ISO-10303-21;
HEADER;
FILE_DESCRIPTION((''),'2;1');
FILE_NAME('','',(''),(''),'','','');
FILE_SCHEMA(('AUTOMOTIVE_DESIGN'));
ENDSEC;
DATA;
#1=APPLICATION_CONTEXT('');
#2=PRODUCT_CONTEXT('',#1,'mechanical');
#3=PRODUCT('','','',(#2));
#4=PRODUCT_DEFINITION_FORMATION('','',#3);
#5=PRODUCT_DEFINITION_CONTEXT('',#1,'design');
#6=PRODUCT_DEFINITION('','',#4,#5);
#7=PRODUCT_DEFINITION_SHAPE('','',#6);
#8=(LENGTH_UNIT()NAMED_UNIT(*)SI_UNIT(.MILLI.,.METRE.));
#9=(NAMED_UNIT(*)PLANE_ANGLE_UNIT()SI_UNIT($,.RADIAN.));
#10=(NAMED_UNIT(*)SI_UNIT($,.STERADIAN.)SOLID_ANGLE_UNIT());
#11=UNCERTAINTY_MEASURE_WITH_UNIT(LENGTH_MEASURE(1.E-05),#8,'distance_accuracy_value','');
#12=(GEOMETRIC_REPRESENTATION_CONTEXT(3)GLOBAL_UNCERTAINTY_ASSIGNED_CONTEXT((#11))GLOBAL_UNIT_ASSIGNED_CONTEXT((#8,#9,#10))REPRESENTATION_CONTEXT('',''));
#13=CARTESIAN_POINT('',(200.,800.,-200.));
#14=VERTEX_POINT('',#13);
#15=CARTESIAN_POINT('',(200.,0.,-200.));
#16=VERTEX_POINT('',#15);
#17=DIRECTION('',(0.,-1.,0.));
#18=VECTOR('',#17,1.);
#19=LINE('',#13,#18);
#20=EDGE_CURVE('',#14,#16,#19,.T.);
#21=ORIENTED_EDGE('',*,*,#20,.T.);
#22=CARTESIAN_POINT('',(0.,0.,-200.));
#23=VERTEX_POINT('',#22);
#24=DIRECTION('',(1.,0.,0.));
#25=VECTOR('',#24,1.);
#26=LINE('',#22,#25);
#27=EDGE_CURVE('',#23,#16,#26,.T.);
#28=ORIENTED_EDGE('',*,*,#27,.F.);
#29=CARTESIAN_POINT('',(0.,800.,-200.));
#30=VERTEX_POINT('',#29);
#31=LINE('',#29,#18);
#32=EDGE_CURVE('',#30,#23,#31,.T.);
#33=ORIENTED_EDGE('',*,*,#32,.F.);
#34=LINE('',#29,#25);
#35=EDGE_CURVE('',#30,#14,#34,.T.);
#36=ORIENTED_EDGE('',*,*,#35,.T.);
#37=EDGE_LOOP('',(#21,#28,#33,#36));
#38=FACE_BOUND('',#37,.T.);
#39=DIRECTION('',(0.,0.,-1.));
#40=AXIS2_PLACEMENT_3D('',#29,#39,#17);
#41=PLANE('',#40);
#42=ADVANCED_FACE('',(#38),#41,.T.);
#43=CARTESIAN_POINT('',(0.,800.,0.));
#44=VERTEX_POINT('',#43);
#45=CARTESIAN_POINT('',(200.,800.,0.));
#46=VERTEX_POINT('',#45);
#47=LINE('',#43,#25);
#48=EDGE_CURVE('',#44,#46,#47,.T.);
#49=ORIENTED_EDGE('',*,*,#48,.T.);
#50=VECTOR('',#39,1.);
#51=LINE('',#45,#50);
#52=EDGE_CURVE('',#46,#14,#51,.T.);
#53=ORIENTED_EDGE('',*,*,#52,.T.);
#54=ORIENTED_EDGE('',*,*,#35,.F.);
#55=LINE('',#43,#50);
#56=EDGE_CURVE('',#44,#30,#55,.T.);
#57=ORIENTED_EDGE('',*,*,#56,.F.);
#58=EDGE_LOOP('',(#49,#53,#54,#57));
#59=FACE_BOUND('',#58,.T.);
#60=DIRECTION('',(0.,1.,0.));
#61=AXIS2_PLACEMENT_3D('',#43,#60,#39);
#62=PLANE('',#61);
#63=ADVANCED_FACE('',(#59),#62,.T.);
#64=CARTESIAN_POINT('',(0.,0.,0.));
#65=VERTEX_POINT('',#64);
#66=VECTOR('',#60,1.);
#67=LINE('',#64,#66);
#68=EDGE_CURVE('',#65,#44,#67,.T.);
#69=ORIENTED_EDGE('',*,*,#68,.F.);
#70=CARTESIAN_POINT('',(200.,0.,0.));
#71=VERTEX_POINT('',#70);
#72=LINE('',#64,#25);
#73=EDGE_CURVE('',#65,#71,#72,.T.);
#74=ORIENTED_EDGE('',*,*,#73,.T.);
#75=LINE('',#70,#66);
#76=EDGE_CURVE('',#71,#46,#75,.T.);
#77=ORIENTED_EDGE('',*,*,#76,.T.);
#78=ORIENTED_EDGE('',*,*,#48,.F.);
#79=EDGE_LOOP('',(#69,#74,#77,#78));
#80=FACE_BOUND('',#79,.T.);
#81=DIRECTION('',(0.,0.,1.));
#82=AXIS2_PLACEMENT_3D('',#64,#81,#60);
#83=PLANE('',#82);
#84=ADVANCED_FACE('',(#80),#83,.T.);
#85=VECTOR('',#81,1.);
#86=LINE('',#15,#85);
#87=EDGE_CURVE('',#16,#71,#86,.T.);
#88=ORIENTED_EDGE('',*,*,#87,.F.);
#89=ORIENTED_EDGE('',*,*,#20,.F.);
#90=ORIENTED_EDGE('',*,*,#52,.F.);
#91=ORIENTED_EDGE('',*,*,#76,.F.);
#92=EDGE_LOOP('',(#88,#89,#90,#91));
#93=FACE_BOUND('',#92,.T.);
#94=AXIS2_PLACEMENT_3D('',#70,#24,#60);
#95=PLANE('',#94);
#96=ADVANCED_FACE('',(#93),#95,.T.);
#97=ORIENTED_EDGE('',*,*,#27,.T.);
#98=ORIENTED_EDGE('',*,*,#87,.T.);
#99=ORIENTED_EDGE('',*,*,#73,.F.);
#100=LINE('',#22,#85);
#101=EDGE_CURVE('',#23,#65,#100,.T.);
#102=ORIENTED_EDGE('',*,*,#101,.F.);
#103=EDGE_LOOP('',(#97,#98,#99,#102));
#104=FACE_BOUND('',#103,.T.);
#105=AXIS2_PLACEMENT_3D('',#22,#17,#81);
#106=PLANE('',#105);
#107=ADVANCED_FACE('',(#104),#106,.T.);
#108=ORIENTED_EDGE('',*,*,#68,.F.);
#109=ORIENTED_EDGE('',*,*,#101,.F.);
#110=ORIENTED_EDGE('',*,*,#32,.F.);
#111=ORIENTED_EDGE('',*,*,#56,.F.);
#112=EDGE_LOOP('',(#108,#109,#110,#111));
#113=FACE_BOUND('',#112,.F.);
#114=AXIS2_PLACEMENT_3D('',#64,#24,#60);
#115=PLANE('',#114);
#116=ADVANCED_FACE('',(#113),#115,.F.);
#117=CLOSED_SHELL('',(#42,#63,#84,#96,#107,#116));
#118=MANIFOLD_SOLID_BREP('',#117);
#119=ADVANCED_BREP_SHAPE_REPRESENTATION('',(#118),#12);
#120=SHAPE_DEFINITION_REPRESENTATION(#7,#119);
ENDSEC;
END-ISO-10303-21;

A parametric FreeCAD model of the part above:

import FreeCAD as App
import Part
import Sketcher


def add_polygon(sketch, points):
    """Adds a closed chain of lines whose ends are joined by coincident constraints."""
    first, n = sketch.GeometryCount, len(points)
    for a, b in zip(points, points[1:] + points[:1]):
        sketch.addGeometry(Part.LineSegment(App.Vector(*a, 0), App.Vector(*b, 0)), False)
    for i in range(n):
        sketch.addConstraint(Sketcher.Constraint("Coincident", first + i, 2, first + (i + 1) % n, 1))

doc = App.newDocument("Part")
body = doc.addObject("PartDesign::Body", "Body")

sketch1 = body.newObject("Sketcher::SketchObject", "Sketch")
sketch1.AttachmentSupport = (doc.getObject("YZ_Plane"), [""])
sketch1.MapMode = "FlatFace"
add_polygon(sketch1, [(800, 0), (0, 0), (0, -200), (800, -200)])
sketch1.addConstraint([
    Sketcher.Constraint("Horizontal", 0),
    Sketcher.Constraint("Vertical", 1),
    Sketcher.Constraint("Horizontal", 2),
    Sketcher.Constraint("Vertical", 3),
    Sketcher.Constraint("Coincident", 0, 2, -1, 1),
    Sketcher.Constraint("DistanceX", 0, 2, 0, 1, 800.0),
    Sketcher.Constraint("DistanceY", 1, 2, 1, 1, 200.0),
])
pad1 = body.newObject("PartDesign::Pad", "Pad")
pad1.Profile = sketch1
pad1.Length = 200

doc.recompute()
